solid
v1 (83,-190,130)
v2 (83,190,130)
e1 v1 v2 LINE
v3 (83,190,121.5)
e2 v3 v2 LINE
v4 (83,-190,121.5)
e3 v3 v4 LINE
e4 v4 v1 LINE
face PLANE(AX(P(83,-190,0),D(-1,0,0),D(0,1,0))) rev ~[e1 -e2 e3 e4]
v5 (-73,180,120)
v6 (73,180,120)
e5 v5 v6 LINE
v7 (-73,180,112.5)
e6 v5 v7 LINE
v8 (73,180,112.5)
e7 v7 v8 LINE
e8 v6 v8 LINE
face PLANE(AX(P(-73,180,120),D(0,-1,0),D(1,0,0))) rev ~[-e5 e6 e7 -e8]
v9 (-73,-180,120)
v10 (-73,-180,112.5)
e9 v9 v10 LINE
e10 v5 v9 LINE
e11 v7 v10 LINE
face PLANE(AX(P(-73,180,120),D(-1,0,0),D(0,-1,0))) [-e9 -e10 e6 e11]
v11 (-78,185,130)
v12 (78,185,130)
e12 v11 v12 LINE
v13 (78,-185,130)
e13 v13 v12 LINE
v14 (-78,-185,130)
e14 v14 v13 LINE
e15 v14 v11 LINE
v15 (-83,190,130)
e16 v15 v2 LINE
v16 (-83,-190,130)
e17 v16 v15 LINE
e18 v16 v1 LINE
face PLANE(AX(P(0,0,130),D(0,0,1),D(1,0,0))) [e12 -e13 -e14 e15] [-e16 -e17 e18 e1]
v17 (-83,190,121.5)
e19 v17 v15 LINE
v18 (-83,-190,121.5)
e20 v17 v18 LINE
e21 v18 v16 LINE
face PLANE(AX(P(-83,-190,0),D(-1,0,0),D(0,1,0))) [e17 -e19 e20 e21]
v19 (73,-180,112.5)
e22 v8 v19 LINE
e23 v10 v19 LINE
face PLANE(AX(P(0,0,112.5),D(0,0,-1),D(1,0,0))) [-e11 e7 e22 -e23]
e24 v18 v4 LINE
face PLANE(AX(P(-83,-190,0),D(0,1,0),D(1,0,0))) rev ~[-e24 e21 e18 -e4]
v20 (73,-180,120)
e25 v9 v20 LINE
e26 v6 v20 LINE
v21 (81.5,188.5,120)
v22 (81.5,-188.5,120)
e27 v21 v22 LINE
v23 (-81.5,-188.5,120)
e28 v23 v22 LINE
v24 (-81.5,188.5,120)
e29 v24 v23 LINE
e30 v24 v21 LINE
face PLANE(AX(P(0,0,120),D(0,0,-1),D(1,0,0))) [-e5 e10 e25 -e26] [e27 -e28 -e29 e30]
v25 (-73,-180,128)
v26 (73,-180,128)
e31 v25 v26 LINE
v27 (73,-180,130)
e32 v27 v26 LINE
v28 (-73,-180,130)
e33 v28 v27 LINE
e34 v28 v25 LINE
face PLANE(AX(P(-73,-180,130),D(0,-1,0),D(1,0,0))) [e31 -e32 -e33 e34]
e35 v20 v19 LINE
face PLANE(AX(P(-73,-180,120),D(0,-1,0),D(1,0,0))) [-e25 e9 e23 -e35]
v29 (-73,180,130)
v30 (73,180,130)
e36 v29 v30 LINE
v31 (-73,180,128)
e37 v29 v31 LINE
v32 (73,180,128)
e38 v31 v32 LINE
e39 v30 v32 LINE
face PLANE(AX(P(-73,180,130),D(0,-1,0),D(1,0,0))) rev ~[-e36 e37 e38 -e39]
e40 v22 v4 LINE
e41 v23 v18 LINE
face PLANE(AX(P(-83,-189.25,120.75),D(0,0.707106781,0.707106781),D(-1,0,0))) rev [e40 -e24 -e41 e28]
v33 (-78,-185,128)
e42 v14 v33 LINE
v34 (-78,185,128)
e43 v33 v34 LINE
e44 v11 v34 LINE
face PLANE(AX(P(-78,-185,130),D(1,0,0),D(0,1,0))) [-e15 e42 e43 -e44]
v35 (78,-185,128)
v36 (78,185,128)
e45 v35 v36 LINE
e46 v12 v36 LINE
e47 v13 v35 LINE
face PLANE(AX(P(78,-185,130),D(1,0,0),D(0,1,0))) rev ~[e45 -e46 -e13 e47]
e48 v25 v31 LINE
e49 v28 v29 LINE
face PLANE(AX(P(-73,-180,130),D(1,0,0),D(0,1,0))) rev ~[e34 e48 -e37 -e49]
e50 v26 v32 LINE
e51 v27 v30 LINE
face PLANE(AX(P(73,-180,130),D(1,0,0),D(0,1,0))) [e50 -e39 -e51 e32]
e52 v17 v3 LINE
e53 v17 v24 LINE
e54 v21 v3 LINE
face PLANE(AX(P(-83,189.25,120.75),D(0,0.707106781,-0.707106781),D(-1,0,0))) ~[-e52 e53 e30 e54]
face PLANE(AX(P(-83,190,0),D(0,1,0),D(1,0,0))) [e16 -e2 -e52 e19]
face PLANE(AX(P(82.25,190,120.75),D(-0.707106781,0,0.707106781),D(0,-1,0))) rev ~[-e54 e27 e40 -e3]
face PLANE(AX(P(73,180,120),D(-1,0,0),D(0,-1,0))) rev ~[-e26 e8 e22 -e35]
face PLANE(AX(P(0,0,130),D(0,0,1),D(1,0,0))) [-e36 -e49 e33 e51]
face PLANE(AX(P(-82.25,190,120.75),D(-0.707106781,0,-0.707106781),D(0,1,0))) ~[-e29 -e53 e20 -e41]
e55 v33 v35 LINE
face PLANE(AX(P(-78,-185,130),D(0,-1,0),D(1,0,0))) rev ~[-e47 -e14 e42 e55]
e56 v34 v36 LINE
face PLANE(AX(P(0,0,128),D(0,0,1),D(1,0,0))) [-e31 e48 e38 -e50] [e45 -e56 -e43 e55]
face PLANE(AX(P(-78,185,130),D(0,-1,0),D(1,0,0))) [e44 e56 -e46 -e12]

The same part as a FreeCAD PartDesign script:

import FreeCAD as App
import Part
import Sketcher

V = App.Vector


def edges_at(feature, points):
    """Names of the edges that pass closest to the given points."""
    edges = feature.Shape.Edges
    near = lambda p: min(range(len(edges)), key=lambda i: edges[i].distToShape(Part.Vertex(*p))[0])
    return sorted({f"Edge{near(p) + 1}" for p in points})

doc = App.newDocument("Part")
body = doc.addObject("PartDesign::Body", "Body")

# Sketch on XY plane
sketch1 = body.newObject("Sketcher::SketchObject", "Sketch")
sketch1.AttachmentSupport = (doc.getObject("XY_Plane"), [""])
sketch1.MapMode = "FlatFace"
sketch1.addGeometry([
    Part.LineSegment(V(-83, 190, 0), V(-83, -190, 0)),
    Part.LineSegment(V(-83, -190, 0), V(83, -190, 0)),
    Part.LineSegment(V(83, -190, 0), V(83, 190, 0)),
    Part.LineSegment(V(83, 190, 0), V(-83, 190, 0)),
], False)
sketch1.addConstraint([
    Sketcher.Constraint("Coincident", 0, 2, 1, 1),
    Sketcher.Constraint("Coincident", 1, 2, 2, 1),
    Sketcher.Constraint("Coincident", 2, 2, 3, 1),
    Sketcher.Constraint("Coincident", 3, 2, 0, 1),
    Sketcher.Constraint("Vertical", 0),
    Sketcher.Constraint("Horizontal", 1),
    Sketcher.Constraint("Vertical", 2),
    Sketcher.Constraint("Horizontal", 3),
    Sketcher.Constraint("Symmetric", 0, 2, 2, 2, -1, 1),
    Sketcher.Constraint("DistanceX", 1, 1, 1, 2, 166.0),
    Sketcher.Constraint("DistanceY", 0, 2, 0, 1, 380.0),
])
pad1 = body.newObject("PartDesign::Pad", "Pad")
pad1.Profile = sketch1
pad1.Length = 130

# Sketch on XY plane
sketch2 = body.newObject("Sketcher::SketchObject", "Sketch001")
sketch2.AttachmentSupport = (doc.getObject("XY_Plane"), [""])
sketch2.MapMode = "FlatFace"
sketch2.addGeometry([
    Part.LineSegment(V(-83, -190, 0), V(-83, 190, 0)),
    Part.LineSegment(V(-83, 190, 0), V(83, 190, 0)),
    Part.LineSegment(V(83, 190, 0), V(83, -190, 0)),
    Part.LineSegment(V(83, -190, 0), V(-83, -190, 0)),
], False)
sketch2.addConstraint([
    Sketcher.Constraint("Coincident", 0, 2, 1, 1),
    Sketcher.Constraint("Coincident", 1, 2, 2, 1),
    Sketcher.Constraint("Coincident", 2, 2, 3, 1),
    Sketcher.Constraint("Coincident", 3, 2, 0, 1),
    Sketcher.Constraint("Vertical", 0),
    Sketcher.Constraint("Horizontal", 1),
    Sketcher.Constraint("Vertical", 2),
    Sketcher.Constraint("Horizontal", 3),
    Sketcher.Constraint("Symmetric", 0, 2, 2, 2, -1, 1),
    Sketcher.Constraint("DistanceX", 1, 1, 1, 2, 166.0),
    Sketcher.Constraint("DistanceY", 0, 1, 0, 2, 380.0),
])
pocket1 = body.newObject("PartDesign::Pocket", "Pocket")
pocket1.Profile = sketch2
pocket1.Length = 120
pocket1.Reversed = True

# Sketch on XY plane
sketch3 = body.newObject("Sketcher::SketchObject", "Sketch002")
sketch3.AttachmentSupport = (doc.getObject("XY_Plane"), [""])
sketch3.MapMode = "FlatFace"
sketch3.AttachmentOffset = App.Placement(V(0, 0, 120), App.Rotation())
sketch3.addGeometry([
    Part.LineSegment(V(-73, -180, 0), V(-73, 180, 0)),
    Part.LineSegment(V(-73, 180, 0), V(73, 180, 0)),
    Part.LineSegment(V(73, 180, 0), V(73, -180, 0)),
    Part.LineSegment(V(73, -180, 0), V(-73, -180, 0)),
], False)
sketch3.addConstraint([
    Sketcher.Constraint("Coincident", 0, 2, 1, 1),
    Sketcher.Constraint("Coincident", 1, 2, 2, 1),
    Sketcher.Constraint("Coincident", 2, 2, 3, 1),
    Sketcher.Constraint("Coincident", 3, 2, 0, 1),
    Sketcher.Constraint("Vertical", 0),
    Sketcher.Constraint("Horizontal", 1),
    Sketcher.Constraint("Vertical", 2),
    Sketcher.Constraint("Horizontal", 3),
    Sketcher.Constraint("Symmetric", 0, 2, 2, 2, -1, 1),
    Sketcher.Constraint("DistanceX", 1, 1, 1, 2, 146.0),
    Sketcher.Constraint("DistanceY", 0, 1, 0, 2, 360.0),
])
pad2 = body.newObject("PartDesign::Pad", "Pad001")
pad2.Profile = sketch3
pad2.Length = 7.5
pad2.Reversed = True

# Sketch on XY plane
sketch4 = body.newObject("Sketcher::SketchObject", "Sketch003")
sketch4.AttachmentSupport = (doc.getObject("XY_Plane"), [""])
sketch4.MapMode = "FlatFace"
sketch4.AttachmentOffset = App.Placement(V(0, 0, 130), App.Rotation())
sketch4.addGeometry([
    Part.LineSegment(V(-78, 185, 0), V(-78, -185, 0)),  # 0
    Part.LineSegment(V(-78, -185, 0), V(78, -185, 0)),  # 1
    Part.LineSegment(V(78, -185, 0), V(78, 185, 0)),  # 2
    Part.LineSegment(V(78, 185, 0), V(-78, 185, 0)),  # 3
    Part.LineSegment(V(73, -180, 0), V(-73, -180, 0)),  # 4
    Part.LineSegment(V(-73, -180, 0), V(-73, 180, 0)),  # 5
    Part.LineSegment(V(-73, 180, 0), V(73, 180, 0)),  # 6
    Part.LineSegment(V(73, 180, 0), V(73, -180, 0)),  # 7
], False)
sketch4.addConstraint([
    Sketcher.Constraint("Coincident", 0, 2, 1, 1),
    Sketcher.Constraint("Coincident", 1, 2, 2, 1),
    Sketcher.Constraint("Coincident", 2, 2, 3, 1),
    Sketcher.Constraint("Coincident", 3, 2, 0, 1),
    Sketcher.Constraint("Coincident", 4, 2, 5, 1),
    Sketcher.Constraint("Coincident", 5, 2, 6, 1),
    Sketcher.Constraint("Coincident", 6, 2, 7, 1),
    Sketcher.Constraint("Coincident", 7, 2, 4, 1),
    Sketcher.Constraint("Vertical", 0),
    Sketcher.Constraint("Horizontal", 1),
    Sketcher.Constraint("Vertical", 2),
    Sketcher.Constraint("Horizontal", 3),
    Sketcher.Constraint("Horizontal", 4),
    Sketcher.Constraint("Vertical", 5),
    Sketcher.Constraint("Horizontal", 6),
    Sketcher.Constraint("Vertical", 7),
    Sketcher.Constraint("Symmetric", 0, 2, 2, 2, -1, 1),
    Sketcher.Constraint("Symmetric", 4, 2, 6, 2, -1, 1),
    Sketcher.Constraint("DistanceX", 1, 1, 1, 2, 156.0),
    Sketcher.Constraint("DistanceX", 4, 2, 4, 1, 146.0),
    Sketcher.Constraint("DistanceY", 0, 2, 0, 1, 370.0),
    Sketcher.Constraint("DistanceY", 5, 1, 5, 2, 360.0),
])
pocket2 = body.newObject("PartDesign::Pocket", "Pocket001")
pocket2.Profile = sketch4
pocket2.Length = 2
doc.recompute()

chamfer = body.newObject("PartDesign::Chamfer", "Chamfer")
chamfer.Base = (pocket2, edges_at(pocket2, [
    (83, 0, 120),
    (0, -190, 120),
    (-83, 0, 120),
    (0, 190, 120),
]))
chamfer.Size = 1.5

doc.recompute()
